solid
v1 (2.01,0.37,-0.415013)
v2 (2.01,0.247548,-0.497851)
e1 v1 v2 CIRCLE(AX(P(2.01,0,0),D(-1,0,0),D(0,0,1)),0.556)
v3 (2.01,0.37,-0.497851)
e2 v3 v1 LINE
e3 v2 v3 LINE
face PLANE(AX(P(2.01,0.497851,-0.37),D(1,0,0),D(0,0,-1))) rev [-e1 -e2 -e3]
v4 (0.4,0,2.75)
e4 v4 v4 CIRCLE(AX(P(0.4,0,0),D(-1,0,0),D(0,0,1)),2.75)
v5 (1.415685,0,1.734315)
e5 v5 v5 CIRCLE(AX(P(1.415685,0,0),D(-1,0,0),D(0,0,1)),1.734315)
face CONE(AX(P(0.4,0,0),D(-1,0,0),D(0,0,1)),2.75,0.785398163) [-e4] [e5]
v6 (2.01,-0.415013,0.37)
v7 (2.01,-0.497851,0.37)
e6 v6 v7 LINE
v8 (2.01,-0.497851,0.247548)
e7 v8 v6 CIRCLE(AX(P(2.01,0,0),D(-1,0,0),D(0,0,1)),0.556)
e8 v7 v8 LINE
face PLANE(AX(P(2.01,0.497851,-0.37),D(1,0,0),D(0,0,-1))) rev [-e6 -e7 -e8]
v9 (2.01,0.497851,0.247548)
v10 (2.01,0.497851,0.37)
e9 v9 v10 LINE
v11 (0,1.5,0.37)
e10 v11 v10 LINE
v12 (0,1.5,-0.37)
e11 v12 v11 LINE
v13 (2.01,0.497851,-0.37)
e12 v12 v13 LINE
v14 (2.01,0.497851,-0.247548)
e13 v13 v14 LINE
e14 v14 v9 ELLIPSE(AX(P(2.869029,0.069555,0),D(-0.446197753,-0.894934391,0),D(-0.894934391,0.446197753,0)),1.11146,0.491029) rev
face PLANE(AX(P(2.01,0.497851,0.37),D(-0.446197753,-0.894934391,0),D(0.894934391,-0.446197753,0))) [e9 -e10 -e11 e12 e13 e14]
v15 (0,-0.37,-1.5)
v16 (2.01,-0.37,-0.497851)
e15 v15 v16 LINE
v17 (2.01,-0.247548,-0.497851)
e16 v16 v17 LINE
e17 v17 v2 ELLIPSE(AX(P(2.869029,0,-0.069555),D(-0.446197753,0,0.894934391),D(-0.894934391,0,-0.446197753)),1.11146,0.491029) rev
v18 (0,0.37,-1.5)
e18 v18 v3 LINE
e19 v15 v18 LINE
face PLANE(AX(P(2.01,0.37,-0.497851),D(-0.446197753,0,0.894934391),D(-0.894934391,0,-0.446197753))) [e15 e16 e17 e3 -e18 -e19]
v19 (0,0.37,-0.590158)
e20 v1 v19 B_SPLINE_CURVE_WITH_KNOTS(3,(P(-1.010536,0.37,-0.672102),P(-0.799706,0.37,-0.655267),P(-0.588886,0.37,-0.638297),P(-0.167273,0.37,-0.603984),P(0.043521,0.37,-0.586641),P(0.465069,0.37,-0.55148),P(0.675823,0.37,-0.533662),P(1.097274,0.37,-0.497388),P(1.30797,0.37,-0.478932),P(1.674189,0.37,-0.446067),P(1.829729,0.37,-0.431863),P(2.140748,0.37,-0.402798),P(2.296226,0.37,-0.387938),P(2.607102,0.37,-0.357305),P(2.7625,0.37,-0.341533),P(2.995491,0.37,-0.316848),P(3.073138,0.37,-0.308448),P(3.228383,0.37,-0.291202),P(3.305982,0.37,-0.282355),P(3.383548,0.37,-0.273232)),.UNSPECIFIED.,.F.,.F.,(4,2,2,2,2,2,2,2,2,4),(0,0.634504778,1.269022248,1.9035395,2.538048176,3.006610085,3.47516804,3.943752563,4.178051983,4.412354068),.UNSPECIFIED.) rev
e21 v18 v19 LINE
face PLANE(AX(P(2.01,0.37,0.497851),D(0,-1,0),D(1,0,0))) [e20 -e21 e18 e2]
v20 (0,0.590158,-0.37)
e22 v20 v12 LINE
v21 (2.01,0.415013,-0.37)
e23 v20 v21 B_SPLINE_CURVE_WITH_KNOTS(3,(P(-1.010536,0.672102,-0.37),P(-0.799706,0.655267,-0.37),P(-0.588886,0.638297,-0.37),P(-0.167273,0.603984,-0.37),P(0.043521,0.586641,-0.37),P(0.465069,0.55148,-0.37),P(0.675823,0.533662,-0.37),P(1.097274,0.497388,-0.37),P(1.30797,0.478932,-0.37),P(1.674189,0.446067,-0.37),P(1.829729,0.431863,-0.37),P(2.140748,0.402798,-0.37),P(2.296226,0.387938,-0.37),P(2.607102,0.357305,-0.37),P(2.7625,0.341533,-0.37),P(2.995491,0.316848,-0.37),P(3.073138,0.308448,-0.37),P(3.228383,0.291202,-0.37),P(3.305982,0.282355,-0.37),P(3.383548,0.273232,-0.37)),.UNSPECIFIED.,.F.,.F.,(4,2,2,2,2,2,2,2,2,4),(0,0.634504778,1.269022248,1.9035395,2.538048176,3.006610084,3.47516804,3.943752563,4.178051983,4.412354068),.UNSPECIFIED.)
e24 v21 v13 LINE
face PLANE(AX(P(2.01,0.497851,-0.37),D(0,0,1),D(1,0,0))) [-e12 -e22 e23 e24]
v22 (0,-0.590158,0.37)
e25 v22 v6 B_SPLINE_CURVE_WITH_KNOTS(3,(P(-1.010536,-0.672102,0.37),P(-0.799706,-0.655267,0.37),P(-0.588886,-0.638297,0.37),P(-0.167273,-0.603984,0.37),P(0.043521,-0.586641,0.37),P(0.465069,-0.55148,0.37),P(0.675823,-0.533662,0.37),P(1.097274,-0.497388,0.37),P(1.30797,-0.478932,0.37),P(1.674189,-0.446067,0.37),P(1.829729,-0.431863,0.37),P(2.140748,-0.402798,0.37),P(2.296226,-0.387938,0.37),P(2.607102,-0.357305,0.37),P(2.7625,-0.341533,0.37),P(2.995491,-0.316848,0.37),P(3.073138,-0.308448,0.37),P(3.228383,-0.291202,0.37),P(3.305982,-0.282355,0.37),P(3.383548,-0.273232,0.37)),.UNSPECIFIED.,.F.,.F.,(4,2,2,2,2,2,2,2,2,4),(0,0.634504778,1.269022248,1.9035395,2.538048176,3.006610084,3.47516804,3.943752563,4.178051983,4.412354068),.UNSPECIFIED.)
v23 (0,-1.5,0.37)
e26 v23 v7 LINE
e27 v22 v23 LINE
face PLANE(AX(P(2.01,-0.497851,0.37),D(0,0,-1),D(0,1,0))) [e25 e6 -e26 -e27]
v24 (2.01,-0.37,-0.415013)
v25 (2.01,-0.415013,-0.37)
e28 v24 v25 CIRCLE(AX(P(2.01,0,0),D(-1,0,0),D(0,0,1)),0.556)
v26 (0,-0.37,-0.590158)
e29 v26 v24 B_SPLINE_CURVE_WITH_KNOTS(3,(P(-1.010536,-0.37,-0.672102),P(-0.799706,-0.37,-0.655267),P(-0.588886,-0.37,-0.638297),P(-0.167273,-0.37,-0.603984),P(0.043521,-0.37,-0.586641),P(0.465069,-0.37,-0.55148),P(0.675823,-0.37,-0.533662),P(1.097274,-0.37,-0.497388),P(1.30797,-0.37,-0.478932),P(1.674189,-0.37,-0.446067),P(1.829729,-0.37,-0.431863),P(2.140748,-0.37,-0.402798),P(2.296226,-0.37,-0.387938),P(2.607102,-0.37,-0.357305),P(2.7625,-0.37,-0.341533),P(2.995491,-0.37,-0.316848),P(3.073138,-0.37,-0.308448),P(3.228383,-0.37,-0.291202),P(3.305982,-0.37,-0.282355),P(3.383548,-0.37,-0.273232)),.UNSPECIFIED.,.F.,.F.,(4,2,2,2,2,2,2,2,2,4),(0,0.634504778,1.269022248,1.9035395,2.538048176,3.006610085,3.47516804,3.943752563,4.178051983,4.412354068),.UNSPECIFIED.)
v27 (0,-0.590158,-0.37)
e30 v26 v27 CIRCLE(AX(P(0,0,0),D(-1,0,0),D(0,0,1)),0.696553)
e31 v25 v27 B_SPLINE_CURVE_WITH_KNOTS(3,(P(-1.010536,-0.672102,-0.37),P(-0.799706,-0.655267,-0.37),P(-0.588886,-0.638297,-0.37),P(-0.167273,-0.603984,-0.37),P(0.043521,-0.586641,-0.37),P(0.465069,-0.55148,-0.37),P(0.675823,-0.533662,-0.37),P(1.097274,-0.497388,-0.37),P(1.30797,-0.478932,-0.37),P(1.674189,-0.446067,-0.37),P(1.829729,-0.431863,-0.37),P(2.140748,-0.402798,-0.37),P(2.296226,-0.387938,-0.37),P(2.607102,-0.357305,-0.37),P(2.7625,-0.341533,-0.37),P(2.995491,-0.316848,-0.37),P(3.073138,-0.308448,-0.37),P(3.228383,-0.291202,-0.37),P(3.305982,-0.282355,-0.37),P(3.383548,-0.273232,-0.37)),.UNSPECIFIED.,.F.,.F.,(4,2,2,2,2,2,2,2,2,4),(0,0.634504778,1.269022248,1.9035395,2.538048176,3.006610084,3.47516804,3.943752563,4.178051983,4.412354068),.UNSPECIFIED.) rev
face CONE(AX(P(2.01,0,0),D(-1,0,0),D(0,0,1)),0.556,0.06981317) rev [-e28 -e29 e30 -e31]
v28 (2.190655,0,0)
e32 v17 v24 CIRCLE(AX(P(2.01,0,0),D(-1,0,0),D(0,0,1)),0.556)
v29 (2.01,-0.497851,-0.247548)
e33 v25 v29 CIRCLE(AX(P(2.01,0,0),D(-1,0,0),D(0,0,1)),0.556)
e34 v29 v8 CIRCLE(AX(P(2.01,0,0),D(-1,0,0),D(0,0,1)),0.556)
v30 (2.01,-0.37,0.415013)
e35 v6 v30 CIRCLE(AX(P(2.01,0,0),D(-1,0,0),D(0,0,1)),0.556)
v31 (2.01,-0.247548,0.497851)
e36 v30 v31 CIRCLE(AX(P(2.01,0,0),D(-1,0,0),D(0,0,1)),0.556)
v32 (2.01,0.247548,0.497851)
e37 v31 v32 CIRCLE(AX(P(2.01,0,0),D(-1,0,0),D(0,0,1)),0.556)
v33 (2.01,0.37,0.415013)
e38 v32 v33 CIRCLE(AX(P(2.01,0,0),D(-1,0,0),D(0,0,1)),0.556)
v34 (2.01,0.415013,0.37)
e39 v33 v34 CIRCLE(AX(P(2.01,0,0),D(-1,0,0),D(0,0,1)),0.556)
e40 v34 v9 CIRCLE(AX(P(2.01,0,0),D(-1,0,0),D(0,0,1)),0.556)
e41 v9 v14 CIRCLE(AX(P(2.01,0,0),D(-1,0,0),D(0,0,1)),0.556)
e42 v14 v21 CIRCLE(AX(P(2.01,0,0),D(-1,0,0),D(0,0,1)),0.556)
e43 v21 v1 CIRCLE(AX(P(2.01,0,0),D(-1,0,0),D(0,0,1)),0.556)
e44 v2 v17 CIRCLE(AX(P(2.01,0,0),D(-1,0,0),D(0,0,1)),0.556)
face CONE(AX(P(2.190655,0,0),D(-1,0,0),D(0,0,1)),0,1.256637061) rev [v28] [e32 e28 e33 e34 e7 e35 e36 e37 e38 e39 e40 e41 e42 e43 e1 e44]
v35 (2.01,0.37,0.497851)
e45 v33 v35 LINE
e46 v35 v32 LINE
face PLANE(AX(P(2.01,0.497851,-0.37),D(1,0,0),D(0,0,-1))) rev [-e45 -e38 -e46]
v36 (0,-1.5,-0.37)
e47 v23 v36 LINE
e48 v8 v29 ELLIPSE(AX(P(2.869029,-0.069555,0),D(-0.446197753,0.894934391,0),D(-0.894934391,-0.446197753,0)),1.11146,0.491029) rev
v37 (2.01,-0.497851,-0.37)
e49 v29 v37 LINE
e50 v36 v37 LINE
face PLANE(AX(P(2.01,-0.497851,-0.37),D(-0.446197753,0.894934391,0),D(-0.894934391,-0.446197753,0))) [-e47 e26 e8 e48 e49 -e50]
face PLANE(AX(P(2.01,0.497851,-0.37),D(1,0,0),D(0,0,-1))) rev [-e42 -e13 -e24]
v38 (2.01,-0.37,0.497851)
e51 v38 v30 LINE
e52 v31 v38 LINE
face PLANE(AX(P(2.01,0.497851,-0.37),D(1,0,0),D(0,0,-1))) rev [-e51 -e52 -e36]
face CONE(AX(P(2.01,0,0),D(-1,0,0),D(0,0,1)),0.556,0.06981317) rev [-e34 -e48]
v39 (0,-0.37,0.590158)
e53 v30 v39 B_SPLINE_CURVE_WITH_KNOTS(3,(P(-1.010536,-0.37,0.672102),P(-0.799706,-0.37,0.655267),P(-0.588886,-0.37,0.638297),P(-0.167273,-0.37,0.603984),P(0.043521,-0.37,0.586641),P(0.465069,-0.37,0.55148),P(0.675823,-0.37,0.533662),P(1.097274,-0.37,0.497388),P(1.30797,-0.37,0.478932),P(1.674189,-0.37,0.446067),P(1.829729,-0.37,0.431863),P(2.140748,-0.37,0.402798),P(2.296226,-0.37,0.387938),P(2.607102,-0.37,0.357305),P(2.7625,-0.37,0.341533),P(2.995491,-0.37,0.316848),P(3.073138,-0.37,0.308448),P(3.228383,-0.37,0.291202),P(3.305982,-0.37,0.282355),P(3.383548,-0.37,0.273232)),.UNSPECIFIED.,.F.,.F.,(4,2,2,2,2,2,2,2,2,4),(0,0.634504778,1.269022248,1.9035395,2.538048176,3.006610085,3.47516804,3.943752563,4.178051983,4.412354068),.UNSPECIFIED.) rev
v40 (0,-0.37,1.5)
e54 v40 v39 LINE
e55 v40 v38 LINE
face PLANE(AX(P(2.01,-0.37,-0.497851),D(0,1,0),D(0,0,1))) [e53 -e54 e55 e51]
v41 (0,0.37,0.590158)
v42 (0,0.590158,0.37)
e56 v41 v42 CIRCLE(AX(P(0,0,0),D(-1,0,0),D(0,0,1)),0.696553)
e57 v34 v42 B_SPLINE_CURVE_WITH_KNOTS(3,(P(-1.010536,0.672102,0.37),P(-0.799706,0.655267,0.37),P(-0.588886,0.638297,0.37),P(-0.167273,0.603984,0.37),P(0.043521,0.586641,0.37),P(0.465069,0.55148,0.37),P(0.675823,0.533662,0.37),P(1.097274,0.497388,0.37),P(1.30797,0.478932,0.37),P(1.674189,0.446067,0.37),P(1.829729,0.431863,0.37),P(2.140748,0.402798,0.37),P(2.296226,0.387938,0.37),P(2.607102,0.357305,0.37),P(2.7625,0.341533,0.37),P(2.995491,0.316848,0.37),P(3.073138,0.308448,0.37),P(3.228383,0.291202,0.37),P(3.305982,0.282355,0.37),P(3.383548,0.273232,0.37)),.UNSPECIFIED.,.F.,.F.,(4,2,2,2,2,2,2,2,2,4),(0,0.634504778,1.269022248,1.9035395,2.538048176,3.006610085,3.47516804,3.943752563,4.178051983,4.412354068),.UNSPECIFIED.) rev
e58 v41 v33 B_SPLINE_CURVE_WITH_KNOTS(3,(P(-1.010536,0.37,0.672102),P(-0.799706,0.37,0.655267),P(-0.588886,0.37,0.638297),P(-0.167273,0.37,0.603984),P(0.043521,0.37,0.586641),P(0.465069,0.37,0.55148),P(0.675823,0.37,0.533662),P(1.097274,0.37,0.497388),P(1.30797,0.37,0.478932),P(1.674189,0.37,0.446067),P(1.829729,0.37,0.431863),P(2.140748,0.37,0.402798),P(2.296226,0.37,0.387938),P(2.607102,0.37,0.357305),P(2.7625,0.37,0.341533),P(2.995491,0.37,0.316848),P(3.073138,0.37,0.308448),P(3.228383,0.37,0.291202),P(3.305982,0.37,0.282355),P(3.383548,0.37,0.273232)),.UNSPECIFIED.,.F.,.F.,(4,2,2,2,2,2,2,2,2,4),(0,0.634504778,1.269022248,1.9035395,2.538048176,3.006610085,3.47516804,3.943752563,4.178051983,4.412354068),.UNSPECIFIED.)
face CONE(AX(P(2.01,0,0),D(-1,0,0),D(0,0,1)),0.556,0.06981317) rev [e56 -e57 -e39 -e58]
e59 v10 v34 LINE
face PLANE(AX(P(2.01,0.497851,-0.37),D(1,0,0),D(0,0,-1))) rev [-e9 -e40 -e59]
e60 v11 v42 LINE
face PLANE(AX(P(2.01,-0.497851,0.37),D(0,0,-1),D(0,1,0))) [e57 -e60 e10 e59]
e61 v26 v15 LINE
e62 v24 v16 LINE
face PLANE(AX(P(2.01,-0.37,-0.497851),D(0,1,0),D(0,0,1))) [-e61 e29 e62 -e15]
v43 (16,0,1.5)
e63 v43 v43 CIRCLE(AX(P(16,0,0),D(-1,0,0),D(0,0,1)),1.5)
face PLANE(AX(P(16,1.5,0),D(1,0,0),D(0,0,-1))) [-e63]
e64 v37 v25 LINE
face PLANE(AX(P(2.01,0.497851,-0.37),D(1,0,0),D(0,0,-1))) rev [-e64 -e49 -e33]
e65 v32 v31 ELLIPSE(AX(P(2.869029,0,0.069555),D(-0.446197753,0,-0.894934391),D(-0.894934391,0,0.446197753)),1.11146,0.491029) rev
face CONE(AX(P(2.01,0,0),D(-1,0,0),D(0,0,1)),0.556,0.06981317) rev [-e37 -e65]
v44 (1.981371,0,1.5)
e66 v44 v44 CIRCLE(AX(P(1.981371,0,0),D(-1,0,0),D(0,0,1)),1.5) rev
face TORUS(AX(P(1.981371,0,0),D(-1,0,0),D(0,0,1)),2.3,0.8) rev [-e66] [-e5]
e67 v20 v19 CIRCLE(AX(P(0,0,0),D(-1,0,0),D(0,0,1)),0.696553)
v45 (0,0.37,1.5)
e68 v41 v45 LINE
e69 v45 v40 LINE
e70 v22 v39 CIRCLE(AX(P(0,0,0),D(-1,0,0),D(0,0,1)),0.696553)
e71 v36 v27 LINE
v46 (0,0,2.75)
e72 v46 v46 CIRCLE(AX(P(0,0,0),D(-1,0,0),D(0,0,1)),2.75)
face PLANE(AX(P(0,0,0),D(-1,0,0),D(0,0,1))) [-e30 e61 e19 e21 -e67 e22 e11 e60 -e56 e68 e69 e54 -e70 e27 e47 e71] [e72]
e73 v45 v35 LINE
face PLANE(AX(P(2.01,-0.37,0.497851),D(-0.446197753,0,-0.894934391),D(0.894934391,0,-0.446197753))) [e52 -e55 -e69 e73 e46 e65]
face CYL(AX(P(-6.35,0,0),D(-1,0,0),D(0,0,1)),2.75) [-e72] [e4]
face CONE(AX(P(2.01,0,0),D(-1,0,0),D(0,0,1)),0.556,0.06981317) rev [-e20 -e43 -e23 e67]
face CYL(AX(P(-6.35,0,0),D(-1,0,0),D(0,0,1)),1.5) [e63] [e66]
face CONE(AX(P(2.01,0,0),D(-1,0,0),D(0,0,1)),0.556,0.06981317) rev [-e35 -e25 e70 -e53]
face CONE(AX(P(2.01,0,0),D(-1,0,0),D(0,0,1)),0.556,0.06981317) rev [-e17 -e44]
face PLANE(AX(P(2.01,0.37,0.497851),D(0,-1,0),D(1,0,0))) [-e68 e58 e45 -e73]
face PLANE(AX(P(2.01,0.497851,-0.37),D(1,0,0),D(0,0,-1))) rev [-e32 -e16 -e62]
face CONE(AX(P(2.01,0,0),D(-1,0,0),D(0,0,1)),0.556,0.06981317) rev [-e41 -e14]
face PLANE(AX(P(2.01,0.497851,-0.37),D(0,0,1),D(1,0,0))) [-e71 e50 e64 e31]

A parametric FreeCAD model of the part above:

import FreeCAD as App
import Part
import Sketcher
Q = App.Units.Quantity


def edges_at(feature, points):
    """Names of the edges that pass closest to the given points."""
    edges = feature.Shape.Edges
    near = lambda p: min(range(len(edges)), key=lambda i: edges[i].distToShape(Part.Vertex(*p))[0])
    return sorted({f"Edge{near(p) + 1}" for p in points})

doc = App.newDocument("Part")
body = doc.addObject("PartDesign::Body", "Body")

sketch1 = body.newObject("Sketcher::SketchObject", "Sketch")
sketch1.AttachmentSupport = (doc.getObject("XY_Plane"), [""])
sketch1.MapMode = "FlatFace"
sketch1.addGeometry([
    Part.LineSegment(App.Vector(0, 2.75, 0), App.Vector(0, 0, 0)),
    Part.LineSegment(App.Vector(0, 0, 0), App.Vector(16, 0, 0)),
    Part.LineSegment(App.Vector(16, 0, 0), App.Vector(16, 1.5, 0)),
    Part.LineSegment(App.Vector(16, 1.5, 0), App.Vector(1.65, 1.5, 0)),
    Part.LineSegment(App.Vector(1.65, 1.5, 0), App.Vector(0.4, 2.75, 0)),
    Part.LineSegment(App.Vector(0.4, 2.75, 0), App.Vector(0, 2.75, 0)),
], False)
sketch1.addConstraint([
    Sketcher.Constraint("Coincident", 0, 2, 1, 1),
    Sketcher.Constraint("Coincident", 1, 2, 2, 1),
    Sketcher.Constraint("Coincident", 2, 2, 3, 1),
    Sketcher.Constraint("Coincident", 3, 2, 4, 1),
    Sketcher.Constraint("Coincident", 4, 2, 5, 1),
    Sketcher.Constraint("Coincident", 5, 2, 0, 1),
    Sketcher.Constraint("Vertical", 0),
    Sketcher.Constraint("Horizontal", 1),
    Sketcher.Constraint("Vertical", 2),
    Sketcher.Constraint("Horizontal", 3),
    Sketcher.Constraint("Horizontal", 5),
    Sketcher.Constraint("Coincident", 0, 2, -1, 1),
    Sketcher.Constraint("DistanceX", 1, 1, 1, 2, Q("16 mm")),
    Sketcher.Constraint("Angle", 4, Q("135 deg")),
    Sketcher.Constraint("DistanceX", 5, 2, 5, 1, Q("0.4 mm")),
    Sketcher.Constraint("DistanceY", 2, 1, 2, 2, Q("1.5 mm")),
    Sketcher.Constraint("DistanceX", 3, 2, 3, 1, Q("14.35 mm")),
])
revolution = body.newObject("PartDesign::Revolution", "Revolution")
revolution.Profile = sketch1
revolution.ReferenceAxis = (sketch1, ["H_Axis"])
revolution.Angle = 360
doc.recompute()

fillet = body.newObject("PartDesign::Fillet", "Fillet")
fillet.Base = (revolution, edges_at(revolution, [(1.65, -1.5, 0)]))
fillet.Radius = 0.8

sketch2 = body.newObject("Sketcher::SketchObject", "Sketch001")
sketch2.AttachmentSupport = (doc.getObject("YZ_Plane"), [""])
sketch2.MapMode = "FlatFace"
sketch2.addGeometry([
    Part.LineSegment(App.Vector(1.5, -0.4, 0), App.Vector(-1.5, -0.4, 0)),
    Part.LineSegment(App.Vector(-1.5, -0.4, 0), App.Vector(-1.5, 0.4, 0)),
    Part.LineSegment(App.Vector(-1.5, 0.4, 0), App.Vector(1.5, 0.4, 0)),
    Part.LineSegment(App.Vector(1.5, 0.4, 0), App.Vector(1.5, -0.4, 0)),
], False)
sketch2.addConstraint([
    Sketcher.Constraint("Coincident", 0, 2, 1, 1),
    Sketcher.Constraint("Coincident", 1, 2, 2, 1),
    Sketcher.Constraint("Coincident", 2, 2, 3, 1),
    Sketcher.Constraint("Coincident", 3, 2, 0, 1),
    Sketcher.Constraint("Horizontal", 0),
    Sketcher.Constraint("Vertical", 1),
    Sketcher.Constraint("Horizontal", 2),
    Sketcher.Constraint("Vertical", 3),
    Sketcher.Constraint("Symmetric", 0, 2, 2, 2, -1, 1),
    Sketcher.Constraint("DistanceX", 0, 2, 0, 1, Q("3 mm")),
    Sketcher.Constraint("DistanceY", 1, 1, 1, 2, Q("0.74 mm")),
])

sketch3 = body.newObject("Sketcher::SketchObject", "Sketch002")
sketch3.AttachmentSupport = (doc.getObject("YZ_Plane"), [""])
sketch3.MapMode = "FlatFace"
sketch3.AttachmentOffset = App.Placement(App.Vector(0, 0, 2.01), App.Rotation())
sketch3.addGeometry([
    Part.LineSegment(App.Vector(0.5, -0.4, 0), App.Vector(-0.5, -0.4, 0)),
    Part.LineSegment(App.Vector(-0.5, -0.4, 0), App.Vector(-0.5, 0.4, 0)),
    Part.LineSegment(App.Vector(-0.5, 0.4, 0), App.Vector(0.5, 0.4, 0)),
    Part.LineSegment(App.Vector(0.5, 0.4, 0), App.Vector(0.5, -0.4, 0)),
], False)
sketch3.addConstraint([
    Sketcher.Constraint("Coincident", 0, 2, 1, 1),
    Sketcher.Constraint("Coincident", 1, 2, 2, 1),
    Sketcher.Constraint("Coincident", 2, 2, 3, 1),
    Sketcher.Constraint("Coincident", 3, 2, 0, 1),
    Sketcher.Constraint("Horizontal", 0),
    Sketcher.Constraint("Vertical", 1),
    Sketcher.Constraint("Horizontal", 2),
    Sketcher.Constraint("Vertical", 3),
    Sketcher.Constraint("Symmetric", 0, 2, 2, 2, -1, 1),
    Sketcher.Constraint("DistanceY", 1, 1, 1, 2, Q("0.74 mm")),
    Sketcher.Constraint("DistanceX", 0, 2, 0, 1, Q("0.995702 mm")),
])

subtractiveloft = body.newObject("PartDesign::SubtractiveLoft", "SubtractiveLoft")
subtractiveloft.Profile = sketch2
subtractiveloft.Sections = [sketch3]
doc.recompute()

polarpattern = body.newObject("PartDesign::PolarPattern", "PolarPattern")
polarpattern.Originals = [subtractiveloft]
polarpattern.Axis = (doc.getObject("X_Axis"), [""])
polarpattern.Angle = 90
polarpattern.Occurrences = 2
body.Tip = polarpattern

sketch4 = body.newObject("Sketcher::SketchObject", "Sketch003")
sketch4.AttachmentSupport = (doc.getObject("XY_Plane"), [""])
sketch4.MapMode = "FlatFace"
sketch4.addGeometry([
    Part.LineSegment(App.Vector(0, 0.7, 0), App.Vector(0, 0, 0)),
    Part.LineSegment(App.Vector(0, 0, 0), App.Vector(2.2, 0, 0)),
    Part.LineSegment(App.Vector(2.2, 0, 0), App.Vector(2, 0.6, 0)),
    Part.LineSegment(App.Vector(2, 0.6, 0), App.Vector(0, 0.7, 0)),
], False)
sketch4.addConstraint([
    Sketcher.Constraint("Coincident", 0, 2, 1, 1),
    Sketcher.Constraint("Coincident", 1, 2, 2, 1),
    Sketcher.Constraint("Coincident", 2, 2, 3, 1),
    Sketcher.Constraint("Coincident", 3, 2, 0, 1),
    Sketcher.Constraint("Vertical", 0),
    Sketcher.Constraint("Horizontal", 1),
    Sketcher.Constraint("Coincident", 0, 2, -1, 1),
    Sketcher.Constraint("Angle", 2, Q("108 deg")),
    Sketcher.Constraint("Angle", 3, Q("176 deg")),
    Sketcher.Constraint("DistanceX", -1, 1, 2, 2, Q("2.01 mm")),
    Sketcher.Constraint("DistanceY", -1, 1, 2, 2, Q("0.556 mm")),
])
groove = body.newObject("PartDesign::Groove", "Groove")
groove.Profile = sketch4
groove.ReferenceAxis = (sketch4, ["H_Axis"])
groove.Angle = 360

doc.recompute()
